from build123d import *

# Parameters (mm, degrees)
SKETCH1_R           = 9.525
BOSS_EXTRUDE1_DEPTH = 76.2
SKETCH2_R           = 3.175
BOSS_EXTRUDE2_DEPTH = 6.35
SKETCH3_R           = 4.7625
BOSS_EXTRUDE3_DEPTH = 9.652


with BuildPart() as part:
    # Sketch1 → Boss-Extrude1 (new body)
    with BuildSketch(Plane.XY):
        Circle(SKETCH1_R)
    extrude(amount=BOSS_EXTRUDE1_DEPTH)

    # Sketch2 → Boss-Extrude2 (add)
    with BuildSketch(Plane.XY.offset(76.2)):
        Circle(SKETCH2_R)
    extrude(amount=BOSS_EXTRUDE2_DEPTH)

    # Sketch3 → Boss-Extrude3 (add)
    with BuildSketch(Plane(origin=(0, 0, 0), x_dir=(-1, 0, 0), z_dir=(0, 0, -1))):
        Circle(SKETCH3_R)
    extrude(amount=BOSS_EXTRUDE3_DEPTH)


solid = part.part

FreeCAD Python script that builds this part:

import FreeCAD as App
import Part
import Sketcher

V = App.Vector
Q = App.Units.Quantity

doc = App.newDocument("Part")
body = doc.addObject("PartDesign::Body", "Body")

# Sketch on XY plane
sketch1 = body.newObject("Sketcher::SketchObject", "Sketch")
sketch1.AttachmentSupport = (doc.getObject("XY_Plane"), [""])
sketch1.MapMode = "FlatFace"
sketch1.addGeometry(Part.Circle(V(0, 0, 0), V(0, 0, 1), 10), False)
sketch1.addConstraint(Sketcher.Constraint("Coincident", 0, 3, -1, 1))
sketch1.addConstraint(Sketcher.Constraint("Diameter", 0, Q("0.75 in")))
pad1 = body.newObject("PartDesign::Pad", "Pad")
pad1.Profile = sketch1
pad1.Length = Q("3 in")

# Sketch on XY plane
sketch2 = body.newObject("Sketcher::SketchObject", "Sketch001")
sketch2.AttachmentSupport = (doc.getObject("XY_Plane"), [""])
sketch2.MapMode = "FlatFace"
sketch2.AttachmentOffset = App.Placement(V(0, 0, 3 * 25.4), App.Rotation())
sketch2.addGeometry(Part.Circle(V(0, 0, 0), V(0, 0, 1), 3.2), False)
sketch2.addConstraint(Sketcher.Constraint("Coincident", 0, 3, -1, 1))
sketch2.addConstraint(Sketcher.Constraint("Diameter", 0, Q("0.25 in")))
pad2 = body.newObject("PartDesign::Pad", "Pad001")
pad2.Profile = sketch2
pad2.Length = Q("0.25 in")

# Sketch on XY plane
sketch3 = body.newObject("Sketcher::SketchObject", "Sketch002")
sketch3.AttachmentSupport = (doc.getObject("XY_Plane"), [""])
sketch3.MapMode = "FlatFace"
sketch3.addGeometry(Part.Circle(V(0, 0, 0), V(0, 0, 1), 4.8), False)
sketch3.addConstraint(Sketcher.Constraint("Coincident", 0, 3, -1, 1))
sketch3.addConstraint(Sketcher.Constraint("Diameter", 0, Q("0.375 in")))
pad3 = body.newObject("PartDesign::Pad", "Pad002")
pad3.Profile = sketch3
pad3.Length = Q("0.38 in")
pad3.Reversed = True

doc.recompute()
